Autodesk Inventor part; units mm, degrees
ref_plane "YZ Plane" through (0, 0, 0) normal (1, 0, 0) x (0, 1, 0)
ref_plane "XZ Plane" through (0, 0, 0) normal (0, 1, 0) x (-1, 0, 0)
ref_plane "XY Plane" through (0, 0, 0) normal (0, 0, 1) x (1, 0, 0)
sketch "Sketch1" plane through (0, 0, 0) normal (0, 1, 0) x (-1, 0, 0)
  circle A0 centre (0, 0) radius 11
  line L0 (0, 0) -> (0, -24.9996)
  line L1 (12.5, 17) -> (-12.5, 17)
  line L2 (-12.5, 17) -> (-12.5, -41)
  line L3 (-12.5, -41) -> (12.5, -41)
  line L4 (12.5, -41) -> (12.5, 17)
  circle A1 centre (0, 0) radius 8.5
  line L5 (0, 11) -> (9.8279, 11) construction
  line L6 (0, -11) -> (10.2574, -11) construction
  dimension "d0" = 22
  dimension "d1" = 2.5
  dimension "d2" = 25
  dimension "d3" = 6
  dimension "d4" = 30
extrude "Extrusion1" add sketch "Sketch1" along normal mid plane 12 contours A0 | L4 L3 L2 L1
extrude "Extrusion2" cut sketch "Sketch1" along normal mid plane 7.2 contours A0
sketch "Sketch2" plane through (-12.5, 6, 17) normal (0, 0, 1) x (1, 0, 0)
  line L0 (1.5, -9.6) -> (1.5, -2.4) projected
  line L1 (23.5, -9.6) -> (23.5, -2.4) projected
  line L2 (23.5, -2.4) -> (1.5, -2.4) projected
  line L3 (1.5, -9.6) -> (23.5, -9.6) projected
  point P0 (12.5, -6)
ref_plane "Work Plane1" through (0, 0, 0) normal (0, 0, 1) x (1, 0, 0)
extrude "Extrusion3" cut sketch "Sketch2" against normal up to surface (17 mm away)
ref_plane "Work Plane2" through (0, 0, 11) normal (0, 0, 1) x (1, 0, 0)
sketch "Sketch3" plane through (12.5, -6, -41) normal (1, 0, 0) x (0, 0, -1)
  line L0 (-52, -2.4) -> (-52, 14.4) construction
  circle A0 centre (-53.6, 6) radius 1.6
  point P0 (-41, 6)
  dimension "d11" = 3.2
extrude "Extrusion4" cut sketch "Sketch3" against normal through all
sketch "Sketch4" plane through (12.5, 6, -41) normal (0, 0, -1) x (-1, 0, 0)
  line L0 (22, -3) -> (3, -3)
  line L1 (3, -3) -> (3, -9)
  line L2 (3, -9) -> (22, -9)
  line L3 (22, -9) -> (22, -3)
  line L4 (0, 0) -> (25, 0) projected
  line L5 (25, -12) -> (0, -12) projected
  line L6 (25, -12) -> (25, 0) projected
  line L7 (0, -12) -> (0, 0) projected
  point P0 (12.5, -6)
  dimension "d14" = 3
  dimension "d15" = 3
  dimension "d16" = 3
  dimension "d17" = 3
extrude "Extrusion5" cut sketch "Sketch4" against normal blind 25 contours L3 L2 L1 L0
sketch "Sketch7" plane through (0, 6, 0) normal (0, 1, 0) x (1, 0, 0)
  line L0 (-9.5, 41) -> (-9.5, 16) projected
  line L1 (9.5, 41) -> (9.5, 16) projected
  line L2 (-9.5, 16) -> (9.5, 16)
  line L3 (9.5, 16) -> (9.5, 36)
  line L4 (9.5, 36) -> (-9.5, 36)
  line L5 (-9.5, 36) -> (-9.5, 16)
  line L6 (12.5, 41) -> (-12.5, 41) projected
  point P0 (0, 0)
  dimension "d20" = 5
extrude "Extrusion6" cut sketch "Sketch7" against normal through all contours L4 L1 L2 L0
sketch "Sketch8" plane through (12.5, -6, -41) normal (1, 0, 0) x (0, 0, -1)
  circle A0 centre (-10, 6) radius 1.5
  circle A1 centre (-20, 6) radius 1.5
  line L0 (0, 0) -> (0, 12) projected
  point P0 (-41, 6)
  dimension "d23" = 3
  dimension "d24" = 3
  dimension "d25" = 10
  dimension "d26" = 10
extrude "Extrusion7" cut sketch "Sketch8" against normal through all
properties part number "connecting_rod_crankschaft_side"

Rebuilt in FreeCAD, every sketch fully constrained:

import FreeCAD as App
import Part
import Sketcher

V = App.Vector
Q = App.Units.Quantity


def add_polygon(sketch, points):
    """Adds a closed chain of lines whose ends are joined by coincident constraints."""
    first, n = sketch.GeometryCount, len(points)
    for a, b in zip(points, points[1:] + points[:1]):
        sketch.addGeometry(Part.LineSegment(App.Vector(*a, 0), App.Vector(*b, 0)), False)
    for i in range(n):
        sketch.addConstraint(Sketcher.Constraint("Coincident", first + i, 2, first + (i + 1) % n, 1))

doc = App.newDocument("Part")
body = doc.addObject("PartDesign::Body", "Body")

# Sketch on XZ plane
sketch1 = body.newObject("Sketcher::SketchObject", "Sketch")
sketch1.AttachmentSupport = (doc.getObject("XZ_Plane"), [""])
sketch1.MapMode = "FlatFace"
add_polygon(sketch1, [(-12, -41), (-12, 17), (12, 17), (12, -41)])  # lines 0-3
sketch1.addGeometry(Part.Circle(V(0, 0, 0), V(0, 0, 1), 8), False)  # 4
sketch1.addConstraint([
    Sketcher.Constraint("Vertical", 0),
    Sketcher.Constraint("Horizontal", 1),
    Sketcher.Constraint("Vertical", 2),
    Sketcher.Constraint("Horizontal", 3),
    Sketcher.Constraint("Coincident", 4, 3, -1, 1),
    Sketcher.Constraint("DistanceX", 1, 1, 1, 2, Q("25 mm")),
    Sketcher.Constraint("Diameter", 4, Q("17 mm")),
    Sketcher.Constraint("DistanceY", 0, 1, 0, 2, Q("58 mm")),
    Sketcher.Constraint("DistanceY", -1, 1, 0, 2, Q("17 mm")),
    Sketcher.Constraint("DistanceX", 0, 2, -1, 1, Q("12.5 mm")),
])
pad1 = body.newObject("PartDesign::Pad", "Pad")
pad1.Profile = sketch1
pad1.Length = 12
pad1.Midplane = True

# Sketch on XZ plane
sketch2 = body.newObject("Sketcher::SketchObject", "Sketch001")
sketch2.AttachmentSupport = (doc.getObject("XZ_Plane"), [""])
sketch2.MapMode = "FlatFace"
sketch2.addGeometry([
    Part.Circle(V(0, 0, 0), V(0, 0, 1), 11),
    Part.Circle(V(0, 0, 0), V(0, 0, 1), 8),
], False)
sketch2.addConstraint([
    Sketcher.Constraint("Coincident", 0, 3, -1, 1),
    Sketcher.Constraint("Coincident", 1, 3, -1, 1),
    Sketcher.Constraint("Diameter", 0, Q("22 mm")),
    Sketcher.Constraint("Diameter", 1, Q("17 mm")),
])
pocket1 = body.newObject("PartDesign::Pocket", "Pocket")
pocket1.Profile = sketch2
pocket1.Length = 7.2
pocket1.Midplane = True

# Sketch on XY plane
sketch3 = body.newObject("Sketcher::SketchObject", "Sketch002")
sketch3.AttachmentSupport = (doc.getObject("XY_Plane"), [""])
sketch3.MapMode = "FlatFace"
sketch3.AttachmentOffset = App.Placement(V(0, 0, 17), App.Rotation())
add_polygon(sketch3, [(-11, 4), (-11, -4), (11, -4), (11, 4)])  # lines 0-3
sketch3.addConstraint([
    Sketcher.Constraint("Vertical", 0),
    Sketcher.Constraint("Horizontal", 1),
    Sketcher.Constraint("Vertical", 2),
    Sketcher.Constraint("Horizontal", 3),
    Sketcher.Constraint("Symmetric", 0, 2, 2, 2, -1, 1),
    Sketcher.Constraint("DistanceX", 1, 1, 1, 2, Q("22 mm")),
    Sketcher.Constraint("DistanceY", 0, 2, 0, 1, Q("7.2 mm")),
])
pocket2 = body.newObject("PartDesign::Pocket", "Pocket001")
pocket2.Profile = sketch3
pocket2.Length = 17

# Sketch on YZ plane
sketch4 = body.newObject("Sketcher::SketchObject", "Sketch003")
sketch4.AttachmentSupport = (doc.getObject("YZ_Plane"), [""])
sketch4.MapMode = "FlatFace"
sketch4.AttachmentOffset = App.Placement(V(0, 0, 12.5), App.Rotation())
sketch4.addGeometry(Part.Circle(V(0, 12.6, 0), V(0, 0, 1), 1.6), False)
sketch4.addConstraint([
    Sketcher.Constraint("PointOnObject", 0, 3, -2),
    Sketcher.Constraint("Diameter", 0, Q("3.2 mm")),
    Sketcher.Constraint("DistanceY", -1, 1, 0, 3, Q("12.6 mm")),
])
pocket3 = body.newObject("PartDesign::Pocket", "Pocket002")
pocket3.Profile = sketch4
pocket3.Type = "ThroughAll"

# Sketch on XY plane
sketch5 = body.newObject("Sketcher::SketchObject", "Sketch004")
sketch5.AttachmentSupport = (doc.getObject("XY_Plane"), [""])
sketch5.MapMode = "FlatFace"
sketch5.AttachmentOffset = App.Placement(V(0, 0, -41), App.Rotation())
add_polygon(sketch5, [(-10, -3), (-10, 3), (10, 3), (10, -3)])  # lines 0-3
sketch5.addConstraint([
    Sketcher.Constraint("Vertical", 0),
    Sketcher.Constraint("Horizontal", 1),
    Sketcher.Constraint("Vertical", 2),
    Sketcher.Constraint("Horizontal", 3),
    Sketcher.Constraint("Symmetric", 0, 2, 2, 2, -1, 1),
    Sketcher.Constraint("DistanceY", -1, 1, 0, 2, Q("3 mm")),
    Sketcher.Constraint("DistanceX", 1, 1, 1, 2, Q("19 mm")),
])
pocket4 = body.newObject("PartDesign::Pocket", "Pocket003")
pocket4.Profile = sketch5
pocket4.Length = 25
pocket4.Reversed = True

# Sketch on XZ plane
sketch6 = body.newObject("Sketcher::SketchObject", "Sketch005")
sketch6.AttachmentSupport = (doc.getObject("XZ_Plane"), [""])
sketch6.MapMode = "FlatFace"
sketch6.AttachmentOffset = App.Placement(V(0, 0, -6), App.Rotation())
add_polygon(sketch6, [(10, -36), (-10, -36), (-10, -16), (10, -16)])  # lines 0-3
sketch6.addConstraint([
    Sketcher.Constraint("Horizontal", 0),
    Sketcher.Constraint("Vertical", 1),
    Sketcher.Constraint("Horizontal", 2),
    Sketcher.Constraint("Vertical", 3),
    Sketcher.Constraint("DistanceX", 0, 2, 0, 1, Q("19 mm")),
    Sketcher.Constraint("DistanceY", 1, 1, 1, 2, Q("20 mm")),
    Sketcher.Constraint("DistanceY", 0, 2, -1, 1, Q("36 mm")),
    Sketcher.Constraint("DistanceX", 0, 2, -1, 1, Q("9.5 mm")),
])
pocket5 = body.newObject("PartDesign::Pocket", "Pocket004")
pocket5.Profile = sketch6
pocket5.Type = "ThroughAll"
pocket5.Reversed = True

# Sketch on YZ plane
sketch7 = body.newObject("Sketcher::SketchObject", "Sketch006")
sketch7.AttachmentSupport = (doc.getObject("YZ_Plane"), [""])
sketch7.MapMode = "FlatFace"
sketch7.AttachmentOffset = App.Placement(V(0, 0, 12.5), App.Rotation())
sketch7.addGeometry([
    Part.Circle(V(0, -31, 0), V(0, 0, 1), 1.5),
    Part.Circle(V(0, -21, 0), V(0, 0, 1), 1.5),
], False)
sketch7.addConstraint([
    Sketcher.Constraint("Equal", 0, 1),
    Sketcher.Constraint("PointOnObject", 0, 3, -2),
    Sketcher.Constraint("PointOnObject", 1, 3, -2),
    Sketcher.Constraint("Diameter", 0, Q("3 mm")),
    Sketcher.Constraint("DistanceY", 0, 3, 1, 3, Q("10 mm")),
    Sketcher.Constraint("DistanceY", 0, 3, -1, 1, Q("31 mm")),
])
pocket6 = body.newObject("PartDesign::Pocket", "Pocket005")
pocket6.Profile = sketch7
pocket6.Type = "ThroughAll"

doc.recompute()
